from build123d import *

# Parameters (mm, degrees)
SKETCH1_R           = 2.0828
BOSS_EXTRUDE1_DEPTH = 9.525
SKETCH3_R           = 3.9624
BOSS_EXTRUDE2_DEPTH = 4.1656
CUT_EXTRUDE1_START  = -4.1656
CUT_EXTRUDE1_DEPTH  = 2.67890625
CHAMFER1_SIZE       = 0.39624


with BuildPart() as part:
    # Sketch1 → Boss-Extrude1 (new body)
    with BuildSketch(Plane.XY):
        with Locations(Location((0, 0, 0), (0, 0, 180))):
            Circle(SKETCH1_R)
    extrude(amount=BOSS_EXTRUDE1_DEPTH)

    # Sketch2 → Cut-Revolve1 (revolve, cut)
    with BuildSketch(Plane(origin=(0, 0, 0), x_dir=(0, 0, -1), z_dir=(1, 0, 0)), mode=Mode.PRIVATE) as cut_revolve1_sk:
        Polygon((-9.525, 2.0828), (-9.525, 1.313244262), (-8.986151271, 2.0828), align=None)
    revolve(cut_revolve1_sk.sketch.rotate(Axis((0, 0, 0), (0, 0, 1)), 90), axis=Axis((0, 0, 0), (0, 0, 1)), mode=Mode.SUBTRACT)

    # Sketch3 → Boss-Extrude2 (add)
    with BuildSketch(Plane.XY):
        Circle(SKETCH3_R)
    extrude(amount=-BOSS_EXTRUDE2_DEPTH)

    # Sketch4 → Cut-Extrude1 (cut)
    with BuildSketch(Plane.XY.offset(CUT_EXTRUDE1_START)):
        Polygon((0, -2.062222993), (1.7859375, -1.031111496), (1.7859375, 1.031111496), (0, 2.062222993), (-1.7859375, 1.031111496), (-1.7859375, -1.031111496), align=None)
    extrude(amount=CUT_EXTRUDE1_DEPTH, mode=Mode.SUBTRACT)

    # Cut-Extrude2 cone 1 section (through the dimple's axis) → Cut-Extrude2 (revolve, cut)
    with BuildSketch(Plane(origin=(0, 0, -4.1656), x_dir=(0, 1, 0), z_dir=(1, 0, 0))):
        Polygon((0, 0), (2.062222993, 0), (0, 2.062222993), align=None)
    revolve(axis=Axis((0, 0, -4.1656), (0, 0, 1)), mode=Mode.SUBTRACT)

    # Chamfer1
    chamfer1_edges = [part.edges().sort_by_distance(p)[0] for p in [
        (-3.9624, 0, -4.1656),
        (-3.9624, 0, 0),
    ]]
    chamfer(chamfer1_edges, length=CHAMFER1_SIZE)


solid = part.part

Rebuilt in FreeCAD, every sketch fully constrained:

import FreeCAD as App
import Part
import Sketcher

V = App.Vector
Q = App.Units.Quantity


def edges_at(feature, points):
    """Names of the edges that pass closest to the given points."""
    edges = feature.Shape.Edges
    near = lambda p: min(range(len(edges)), key=lambda i: edges[i].distToShape(Part.Vertex(*p))[0])
    return sorted({f"Edge{near(p) + 1}" for p in points})

doc = App.newDocument("Part")
params = doc.addObject("Spreadsheet::Sheet", "Params")
for row, (alias, value) in enumerate([
    ("sketch1_diameter", "0.164 in"),
    ("pad1_length", "0.375 in"),
    ("groove_angle", "360 deg"),
    ("sketch3_diameter", "0.312 in"),
    ("pad2_length", "0.164 in"),
    ("pocket1_length", "2.678906 mm"),
    ("groove2_angle", "360 deg"),
    ("chamfer_size", "0.0156 in"),
], start=1):
    params.set(f"A{row}", alias)
    params.set(f"B{row}", "=" + value)
    params.setAlias(f"B{row}", alias)

body = doc.addObject("PartDesign::Body", "Body")

# Sketch on XY plane
sketch1 = doc.addObject("Sketcher::SketchObject", "Sketch")
body.addObject(sketch1)
sketch1.AttachmentSupport = (doc.XY_Plane, [""])
sketch1.MapMode = "FlatFace"
sketch1.addGeometry(Part.Circle(V(0, 0, 0), V(0, 0, 1), 2.0828), False)
sketch1.addConstraint(Sketcher.Constraint("Coincident", 0, 3, -1, 1))
sketch1.addConstraint(Sketcher.Constraint("Diameter", 0, Q("0.164 in")))
sketch1.setExpression("Constraints[1]", "Params.sketch1_diameter")
pad1 = doc.addObject("PartDesign::Pad", "Pad")
body.addObject(pad1)
pad1.Profile = sketch1
pad1.setExpression("Length", "Params.pad1_length")

# Sketch on YZ plane
sketch2 = doc.addObject("Sketcher::SketchObject", "Sketch001")
body.addObject(sketch2)
sketch2.AttachmentSupport = (doc.YZ_Plane, [""])
sketch2.MapMode = "FlatFace"
sketch2.addGeometry(Part.LineSegment(V(2.0828, 9.525, 0), V(1.313244, 9.525, 0)), False)
sketch2.addGeometry(Part.LineSegment(V(1.313244, 9.525, 0), V(2.0828, 8.986151, 0)), False)
sketch2.addGeometry(Part.LineSegment(V(2.0828, 8.986151, 0), V(2.0828, 9.525, 0)), False)
sketch2.addConstraint(Sketcher.Constraint("Coincident", 0, 2, 1, 1))
sketch2.addConstraint(Sketcher.Constraint("Coincident", 1, 2, 2, 1))
sketch2.addConstraint(Sketcher.Constraint("Coincident", 2, 2, 0, 1))
sketch2.addConstraint(Sketcher.Constraint("Horizontal", 0))
sketch2.addConstraint(Sketcher.Constraint("Vertical", 2))
sketch2.addConstraint(Sketcher.Constraint("Angle", 1, Q("-35 deg")))
sketch2.addConstraint(Sketcher.Constraint("DistanceY", -1, 1, 0, 2, Q("0.375 in")))
sketch2.addConstraint(Sketcher.Constraint("DistanceX", -1, 1, 1, 2, Q("0.082 in")))
sketch2.addConstraint(Sketcher.Constraint("DistanceY", 2, 1, 2, 2, 0.538849))
groove = doc.addObject("PartDesign::Groove", "Groove")
body.addObject(groove)
groove.Profile = sketch2
groove.ReferenceAxis = (sketch2, ["V_Axis"])
groove.setExpression("Angle", "Params.groove_angle")

# Sketch on XY plane
sketch3 = doc.addObject("Sketcher::SketchObject", "Sketch002")
body.addObject(sketch3)
sketch3.AttachmentSupport = (doc.XY_Plane, [""])
sketch3.MapMode = "FlatFace"
sketch3.addGeometry(Part.Circle(V(0, 0, 0), V(0, 0, 1), 3.9624), False)
sketch3.addConstraint(Sketcher.Constraint("Coincident", 0, 3, -1, 1))
sketch3.addConstraint(Sketcher.Constraint("Diameter", 0, Q("0.312 in")))
sketch3.setExpression("Constraints[1]", "Params.sketch3_diameter")
pad2 = doc.addObject("PartDesign::Pad", "Pad001")
body.addObject(pad2)
pad2.Profile = sketch3
pad2.setExpression("Length", "Params.pad2_length")
pad2.Reversed = True

# Sketch on XY plane
sketch4 = doc.addObject("Sketcher::SketchObject", "Sketch003")
body.addObject(sketch4)
sketch4.AttachmentSupport = (doc.XY_Plane, [""])
sketch4.MapMode = "FlatFace"
sketch4.AttachmentOffset = App.Placement(V(0, 0, -0.164 * 25.4), App.Rotation())
sketch4.addGeometry(Part.LineSegment(V(0, -2.062223, 0), V(1.785937, -1.031111, 0)), False)
sketch4.addGeometry(Part.LineSegment(V(1.785937, -1.031111, 0), V(1.785937, 1.031111, 0)), False)
sketch4.addGeometry(Part.LineSegment(V(1.785937, 1.031111, 0), V(0, 2.062223, 0)), False)
sketch4.addGeometry(Part.LineSegment(V(0, 2.062223, 0), V(-1.785937, 1.031111, 0)), False)
sketch4.addGeometry(Part.LineSegment(V(-1.785937, 1.031111, 0), V(-1.785937, -1.031111, 0)), False)
sketch4.addGeometry(Part.LineSegment(V(-1.785937, -1.031111, 0), V(0, -2.062223, 0)), False)
sketch4.addConstraint(Sketcher.Constraint("Coincident", 0, 2, 1, 1))
sketch4.addConstraint(Sketcher.Constraint("Coincident", 1, 2, 2, 1))
sketch4.addConstraint(Sketcher.Constraint("Coincident", 2, 2, 3, 1))
sketch4.addConstraint(Sketcher.Constraint("Coincident", 3, 2, 4, 1))
sketch4.addConstraint(Sketcher.Constraint("Coincident", 4, 2, 5, 1))
sketch4.addConstraint(Sketcher.Constraint("Coincident", 5, 2, 0, 1))
sketch4.addConstraint(Sketcher.Constraint("Vertical", 1))
sketch4.addConstraint(Sketcher.Constraint("Vertical", 4))
sketch4.addConstraint(Sketcher.Constraint("Symmetric", 0, 2, 3, 2, -1, 1))
sketch4.addConstraint(Sketcher.Constraint("Symmetric", 2, 2, 5, 2, -1, 1))
sketch4.addConstraint(Sketcher.Constraint("PointOnObject", 2, 2, -2))
sketch4.addConstraint(Sketcher.Constraint("Parallel", 2, 5))
sketch4.addConstraint(Sketcher.Constraint("Horizontal", 1, 2, 3, 2))
sketch4.addConstraint(Sketcher.Constraint("Angle", 0, Q("30 deg")))
sketch4.addConstraint(Sketcher.Constraint("DistanceX", 3, 2, 1, 2, Q("0.140625 in")))
sketch4.addConstraint(Sketcher.Constraint("DistanceY", 1, 1, 1, 2, 2.062223))
pocket1 = doc.addObject("PartDesign::Pocket", "Pocket")
body.addObject(pocket1)
pocket1.Profile = sketch4
pocket1.setExpression("Length", "Params.pocket1_length")
pocket1.Reversed = True

# Sketch on YZ plane
sketch5 = doc.addObject("Sketcher::SketchObject", "Sketch004")
body.addObject(sketch5)
sketch5.AttachmentSupport = (doc.YZ_Plane, [""])
sketch5.MapMode = "FlatFace"
sketch5.addGeometry(Part.LineSegment(V(0, -4.1656, 0), V(2.062223, -4.1656, 0)), False)
sketch5.addGeometry(Part.LineSegment(V(2.062223, -4.1656, 0), V(0, -2.103377, 0)), False)
sketch5.addGeometry(Part.LineSegment(V(0, -2.103377, 0), V(0, -4.1656, 0)), False)
sketch5.addConstraint(Sketcher.Constraint("Coincident", 0, 2, 1, 1))
sketch5.addConstraint(Sketcher.Constraint("Coincident", 1, 2, 2, 1))
sketch5.addConstraint(Sketcher.Constraint("Coincident", 2, 2, 0, 1))
sketch5.addConstraint(Sketcher.Constraint("Horizontal", 0))
sketch5.addConstraint(Sketcher.Constraint("Vertical", 2))
sketch5.addConstraint(Sketcher.Constraint("PointOnObject", 1, 2, -2))
sketch5.addConstraint(Sketcher.Constraint("Equal", 0, 2))
sketch5.addConstraint(Sketcher.Constraint("DistanceY", 0, 2, -1, 1, Q("0.164 in")))
sketch5.addConstraint(Sketcher.Constraint("DistanceX", 0, 1, 0, 2, 2.062223))
groove2 = doc.addObject("PartDesign::Groove", "Groove001")
body.addObject(groove2)
groove2.Profile = sketch5
groove2.ReferenceAxis = (sketch5, ["V_Axis"])
groove2.setExpression("Angle", "Params.groove2_angle")
doc.recompute()

chamfer = doc.addObject("PartDesign::Chamfer", "Chamfer")
body.addObject(chamfer)
chamfer.Base = (groove2, edges_at(groove2, [(-3.962, 0, -4.166), (-3.962, 0, 0)]))
chamfer.setExpression("Size", "Params.chamfer_size")

doc.recompute()
